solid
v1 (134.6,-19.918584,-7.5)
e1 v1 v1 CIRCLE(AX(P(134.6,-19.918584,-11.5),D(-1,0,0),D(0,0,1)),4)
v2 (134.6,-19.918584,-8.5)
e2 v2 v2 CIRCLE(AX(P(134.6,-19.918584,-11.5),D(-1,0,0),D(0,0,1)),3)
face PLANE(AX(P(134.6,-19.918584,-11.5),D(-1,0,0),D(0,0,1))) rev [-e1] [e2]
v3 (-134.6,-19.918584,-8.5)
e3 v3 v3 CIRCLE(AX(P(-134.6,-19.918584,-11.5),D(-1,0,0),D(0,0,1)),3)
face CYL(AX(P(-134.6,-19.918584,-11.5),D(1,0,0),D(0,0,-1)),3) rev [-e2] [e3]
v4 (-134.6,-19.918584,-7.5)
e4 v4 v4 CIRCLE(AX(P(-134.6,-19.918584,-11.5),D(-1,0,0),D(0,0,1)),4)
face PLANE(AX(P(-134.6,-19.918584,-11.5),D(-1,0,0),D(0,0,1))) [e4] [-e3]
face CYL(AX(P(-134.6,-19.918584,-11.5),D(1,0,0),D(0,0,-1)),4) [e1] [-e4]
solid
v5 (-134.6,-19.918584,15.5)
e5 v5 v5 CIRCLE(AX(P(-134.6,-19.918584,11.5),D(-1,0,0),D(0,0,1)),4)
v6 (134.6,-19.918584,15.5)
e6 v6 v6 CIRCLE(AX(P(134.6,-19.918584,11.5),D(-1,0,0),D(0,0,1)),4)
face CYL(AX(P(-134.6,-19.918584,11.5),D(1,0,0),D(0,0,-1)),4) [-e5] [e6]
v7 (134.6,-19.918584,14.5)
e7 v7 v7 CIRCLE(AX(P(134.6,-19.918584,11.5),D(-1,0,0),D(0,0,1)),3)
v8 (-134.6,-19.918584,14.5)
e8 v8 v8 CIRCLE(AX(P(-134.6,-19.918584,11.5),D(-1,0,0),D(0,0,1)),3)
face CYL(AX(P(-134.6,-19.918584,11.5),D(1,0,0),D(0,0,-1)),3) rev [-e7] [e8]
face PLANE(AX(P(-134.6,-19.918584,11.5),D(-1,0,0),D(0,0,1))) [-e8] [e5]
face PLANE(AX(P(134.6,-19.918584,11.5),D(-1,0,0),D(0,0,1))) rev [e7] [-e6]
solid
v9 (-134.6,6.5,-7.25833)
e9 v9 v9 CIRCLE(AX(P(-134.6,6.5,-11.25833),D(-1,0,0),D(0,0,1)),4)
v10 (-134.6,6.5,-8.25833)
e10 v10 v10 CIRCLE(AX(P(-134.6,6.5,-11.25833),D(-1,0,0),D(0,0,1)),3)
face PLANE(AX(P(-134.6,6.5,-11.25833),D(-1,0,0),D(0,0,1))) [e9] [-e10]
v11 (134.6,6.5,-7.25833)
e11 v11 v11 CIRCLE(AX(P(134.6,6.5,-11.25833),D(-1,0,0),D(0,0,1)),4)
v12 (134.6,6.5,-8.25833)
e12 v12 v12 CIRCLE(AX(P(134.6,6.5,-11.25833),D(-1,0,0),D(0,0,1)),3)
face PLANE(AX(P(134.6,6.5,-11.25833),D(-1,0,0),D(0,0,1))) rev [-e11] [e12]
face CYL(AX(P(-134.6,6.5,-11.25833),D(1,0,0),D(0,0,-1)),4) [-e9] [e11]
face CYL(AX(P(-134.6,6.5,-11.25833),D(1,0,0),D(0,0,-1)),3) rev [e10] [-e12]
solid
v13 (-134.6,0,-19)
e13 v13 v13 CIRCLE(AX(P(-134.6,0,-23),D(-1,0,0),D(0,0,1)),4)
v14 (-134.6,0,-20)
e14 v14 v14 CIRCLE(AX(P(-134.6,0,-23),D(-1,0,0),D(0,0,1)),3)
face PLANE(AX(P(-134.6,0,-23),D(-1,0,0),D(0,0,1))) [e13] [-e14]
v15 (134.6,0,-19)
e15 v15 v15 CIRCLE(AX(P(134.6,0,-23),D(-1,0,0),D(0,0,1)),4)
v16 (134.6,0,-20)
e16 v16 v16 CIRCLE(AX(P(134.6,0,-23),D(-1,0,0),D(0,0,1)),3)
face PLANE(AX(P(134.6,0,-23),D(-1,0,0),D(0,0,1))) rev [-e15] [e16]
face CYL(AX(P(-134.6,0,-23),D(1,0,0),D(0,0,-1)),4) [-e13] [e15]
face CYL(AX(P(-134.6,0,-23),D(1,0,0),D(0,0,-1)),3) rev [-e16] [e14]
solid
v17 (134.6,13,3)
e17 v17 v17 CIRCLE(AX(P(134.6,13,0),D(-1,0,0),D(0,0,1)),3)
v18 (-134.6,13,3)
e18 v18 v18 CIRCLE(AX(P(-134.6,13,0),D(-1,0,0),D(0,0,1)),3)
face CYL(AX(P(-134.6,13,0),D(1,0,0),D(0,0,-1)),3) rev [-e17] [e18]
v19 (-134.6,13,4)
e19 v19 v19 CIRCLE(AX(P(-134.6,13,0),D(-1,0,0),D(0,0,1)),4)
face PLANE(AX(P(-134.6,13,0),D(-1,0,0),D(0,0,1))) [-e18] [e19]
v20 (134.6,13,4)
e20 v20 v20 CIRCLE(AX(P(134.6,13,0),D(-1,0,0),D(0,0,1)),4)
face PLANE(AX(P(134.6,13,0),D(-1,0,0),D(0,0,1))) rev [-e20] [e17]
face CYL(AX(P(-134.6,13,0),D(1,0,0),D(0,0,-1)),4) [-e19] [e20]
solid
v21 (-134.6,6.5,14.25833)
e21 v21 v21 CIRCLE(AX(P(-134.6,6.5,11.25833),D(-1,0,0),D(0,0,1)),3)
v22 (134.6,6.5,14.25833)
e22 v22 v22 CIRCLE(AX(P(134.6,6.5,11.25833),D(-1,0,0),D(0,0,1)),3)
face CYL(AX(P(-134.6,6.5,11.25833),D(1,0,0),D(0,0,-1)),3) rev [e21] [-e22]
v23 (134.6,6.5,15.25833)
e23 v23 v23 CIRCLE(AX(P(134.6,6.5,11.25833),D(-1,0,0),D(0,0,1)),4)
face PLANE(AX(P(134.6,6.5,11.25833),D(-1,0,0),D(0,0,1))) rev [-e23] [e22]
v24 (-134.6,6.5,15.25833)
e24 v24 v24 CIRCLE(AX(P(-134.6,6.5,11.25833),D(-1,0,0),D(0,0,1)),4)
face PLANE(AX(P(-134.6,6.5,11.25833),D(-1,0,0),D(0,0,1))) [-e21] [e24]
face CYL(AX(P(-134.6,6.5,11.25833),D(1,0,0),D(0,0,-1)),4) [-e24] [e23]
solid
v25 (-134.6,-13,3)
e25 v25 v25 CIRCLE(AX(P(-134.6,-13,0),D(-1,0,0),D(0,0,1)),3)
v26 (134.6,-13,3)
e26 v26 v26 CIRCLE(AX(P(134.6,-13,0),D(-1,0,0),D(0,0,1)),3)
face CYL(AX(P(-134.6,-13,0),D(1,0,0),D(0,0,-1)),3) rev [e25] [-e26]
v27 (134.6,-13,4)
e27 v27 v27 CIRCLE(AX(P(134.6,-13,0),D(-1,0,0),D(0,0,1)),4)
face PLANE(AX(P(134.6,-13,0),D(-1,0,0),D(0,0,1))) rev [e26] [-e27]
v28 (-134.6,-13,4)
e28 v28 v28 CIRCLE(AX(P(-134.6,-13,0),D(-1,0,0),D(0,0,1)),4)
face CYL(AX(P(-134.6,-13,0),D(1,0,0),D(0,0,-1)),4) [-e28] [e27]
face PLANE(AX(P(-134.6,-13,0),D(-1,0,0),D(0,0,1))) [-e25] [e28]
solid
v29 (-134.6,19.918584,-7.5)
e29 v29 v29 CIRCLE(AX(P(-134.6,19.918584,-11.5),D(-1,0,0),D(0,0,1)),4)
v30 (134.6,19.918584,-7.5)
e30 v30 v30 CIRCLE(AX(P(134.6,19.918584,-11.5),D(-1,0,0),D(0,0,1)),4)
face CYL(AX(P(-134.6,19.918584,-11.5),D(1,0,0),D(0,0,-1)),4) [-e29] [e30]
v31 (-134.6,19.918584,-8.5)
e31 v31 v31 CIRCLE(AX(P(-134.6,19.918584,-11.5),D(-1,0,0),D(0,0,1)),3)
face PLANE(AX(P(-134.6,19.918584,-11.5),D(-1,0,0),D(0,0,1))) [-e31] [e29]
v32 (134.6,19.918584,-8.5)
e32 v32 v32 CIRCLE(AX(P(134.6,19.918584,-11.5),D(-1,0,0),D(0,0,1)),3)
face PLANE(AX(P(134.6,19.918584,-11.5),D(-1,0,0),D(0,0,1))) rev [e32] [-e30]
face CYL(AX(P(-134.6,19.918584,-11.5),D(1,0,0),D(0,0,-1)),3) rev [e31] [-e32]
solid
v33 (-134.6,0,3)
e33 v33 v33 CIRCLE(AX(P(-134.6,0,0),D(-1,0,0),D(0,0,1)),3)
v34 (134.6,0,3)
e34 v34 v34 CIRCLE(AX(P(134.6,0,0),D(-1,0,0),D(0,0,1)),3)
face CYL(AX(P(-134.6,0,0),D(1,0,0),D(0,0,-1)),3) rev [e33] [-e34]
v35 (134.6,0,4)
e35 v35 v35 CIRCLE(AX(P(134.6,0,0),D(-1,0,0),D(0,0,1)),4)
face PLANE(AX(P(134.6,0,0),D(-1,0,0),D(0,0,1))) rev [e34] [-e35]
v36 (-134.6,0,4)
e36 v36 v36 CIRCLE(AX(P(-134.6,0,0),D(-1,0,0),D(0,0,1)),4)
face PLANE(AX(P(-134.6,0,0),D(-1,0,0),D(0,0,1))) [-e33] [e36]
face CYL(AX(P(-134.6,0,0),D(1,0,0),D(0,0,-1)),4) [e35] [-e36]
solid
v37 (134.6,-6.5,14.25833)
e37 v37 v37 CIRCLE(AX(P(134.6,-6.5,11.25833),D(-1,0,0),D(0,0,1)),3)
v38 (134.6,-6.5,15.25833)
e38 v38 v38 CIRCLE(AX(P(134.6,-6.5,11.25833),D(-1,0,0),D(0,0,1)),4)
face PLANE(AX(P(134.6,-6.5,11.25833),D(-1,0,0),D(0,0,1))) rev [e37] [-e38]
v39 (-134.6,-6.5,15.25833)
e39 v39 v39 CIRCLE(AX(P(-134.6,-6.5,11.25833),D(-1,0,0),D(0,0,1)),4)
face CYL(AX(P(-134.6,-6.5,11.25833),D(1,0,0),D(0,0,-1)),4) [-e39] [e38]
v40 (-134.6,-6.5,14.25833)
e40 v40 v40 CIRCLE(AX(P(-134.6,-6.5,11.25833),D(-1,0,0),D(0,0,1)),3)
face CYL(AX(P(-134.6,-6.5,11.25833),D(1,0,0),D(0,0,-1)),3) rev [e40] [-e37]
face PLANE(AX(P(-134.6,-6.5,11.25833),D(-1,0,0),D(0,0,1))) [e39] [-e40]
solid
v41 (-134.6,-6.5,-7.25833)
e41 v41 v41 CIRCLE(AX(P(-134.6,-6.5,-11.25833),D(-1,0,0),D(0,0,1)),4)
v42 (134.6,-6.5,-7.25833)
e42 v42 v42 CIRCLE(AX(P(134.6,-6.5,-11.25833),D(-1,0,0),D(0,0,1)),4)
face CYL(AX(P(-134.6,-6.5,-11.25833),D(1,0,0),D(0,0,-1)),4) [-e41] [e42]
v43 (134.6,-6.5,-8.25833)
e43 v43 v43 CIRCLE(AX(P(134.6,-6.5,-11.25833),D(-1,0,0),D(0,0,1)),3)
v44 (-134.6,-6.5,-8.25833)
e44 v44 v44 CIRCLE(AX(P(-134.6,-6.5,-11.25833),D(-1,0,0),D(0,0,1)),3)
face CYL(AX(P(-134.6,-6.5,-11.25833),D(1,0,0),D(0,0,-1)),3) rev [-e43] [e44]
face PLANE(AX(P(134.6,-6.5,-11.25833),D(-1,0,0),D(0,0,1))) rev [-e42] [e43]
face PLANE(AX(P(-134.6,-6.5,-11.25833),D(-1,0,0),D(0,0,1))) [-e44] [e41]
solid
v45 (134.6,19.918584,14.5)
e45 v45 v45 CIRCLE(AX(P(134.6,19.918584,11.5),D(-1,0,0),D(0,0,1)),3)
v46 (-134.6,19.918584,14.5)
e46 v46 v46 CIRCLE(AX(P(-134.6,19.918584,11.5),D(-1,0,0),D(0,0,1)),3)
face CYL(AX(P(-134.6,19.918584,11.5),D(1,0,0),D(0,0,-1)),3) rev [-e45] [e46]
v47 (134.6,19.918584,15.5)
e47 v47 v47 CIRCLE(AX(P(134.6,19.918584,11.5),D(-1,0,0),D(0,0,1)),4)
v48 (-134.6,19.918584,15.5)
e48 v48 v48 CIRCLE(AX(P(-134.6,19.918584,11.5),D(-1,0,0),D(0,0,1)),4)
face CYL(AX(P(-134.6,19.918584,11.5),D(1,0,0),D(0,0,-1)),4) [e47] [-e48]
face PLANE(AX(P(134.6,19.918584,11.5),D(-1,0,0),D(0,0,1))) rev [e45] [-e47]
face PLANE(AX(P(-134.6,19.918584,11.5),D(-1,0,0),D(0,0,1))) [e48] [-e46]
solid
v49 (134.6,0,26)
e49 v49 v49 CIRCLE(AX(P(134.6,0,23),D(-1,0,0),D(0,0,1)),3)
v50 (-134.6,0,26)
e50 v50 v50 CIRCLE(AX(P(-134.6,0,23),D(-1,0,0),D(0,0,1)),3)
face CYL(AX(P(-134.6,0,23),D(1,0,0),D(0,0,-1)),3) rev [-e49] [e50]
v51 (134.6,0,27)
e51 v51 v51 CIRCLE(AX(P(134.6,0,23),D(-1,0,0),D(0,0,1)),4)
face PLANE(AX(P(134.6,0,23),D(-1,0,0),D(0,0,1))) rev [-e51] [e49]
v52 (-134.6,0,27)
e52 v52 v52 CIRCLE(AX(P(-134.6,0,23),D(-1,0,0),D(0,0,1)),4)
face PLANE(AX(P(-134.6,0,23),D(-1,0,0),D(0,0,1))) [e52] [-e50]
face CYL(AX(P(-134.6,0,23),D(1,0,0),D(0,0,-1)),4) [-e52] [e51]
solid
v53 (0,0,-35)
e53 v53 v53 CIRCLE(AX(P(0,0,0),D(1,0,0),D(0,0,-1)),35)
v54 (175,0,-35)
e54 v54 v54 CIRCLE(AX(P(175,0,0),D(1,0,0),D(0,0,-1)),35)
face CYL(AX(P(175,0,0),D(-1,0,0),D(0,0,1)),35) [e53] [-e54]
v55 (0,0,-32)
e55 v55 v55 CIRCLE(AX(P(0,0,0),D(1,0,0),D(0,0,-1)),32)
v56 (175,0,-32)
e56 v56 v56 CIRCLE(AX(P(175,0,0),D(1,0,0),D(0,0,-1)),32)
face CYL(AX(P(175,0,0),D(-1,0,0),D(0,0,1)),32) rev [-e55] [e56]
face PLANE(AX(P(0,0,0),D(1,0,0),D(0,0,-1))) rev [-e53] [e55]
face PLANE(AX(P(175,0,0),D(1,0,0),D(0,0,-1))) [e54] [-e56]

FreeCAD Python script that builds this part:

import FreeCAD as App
import Part
import Sketcher

V = App.Vector
Q = App.Units.Quantity

doc = App.newDocument("Part")
body = doc.addObject("PartDesign::Body", "Body")

# Sketch on YZ plane
sketch1 = body.newObject("Sketcher::SketchObject", "Sketch")
sketch1.AttachmentSupport = (doc.getObject("YZ_Plane"), [""])
sketch1.MapMode = "FlatFace"
sketch1.addGeometry([
    Part.Circle(V(0, 0, 0), V(0, 0, 1), 35),
    Part.Circle(V(0, 0, 0), V(0, 0, 1), 32),
], False)
sketch1.addConstraint([
    Sketcher.Constraint("Coincident", 0, 3, -1, 1),
    Sketcher.Constraint("Coincident", 1, 3, -1, 1),
    Sketcher.Constraint("Diameter", 0, Q("70 mm")),
    Sketcher.Constraint("Diameter", 1, Q("64 mm")),
])
pad1 = body.newObject("PartDesign::Pad", "Pad")
pad1.Profile = sketch1
pad1.Length = 175
body2 = doc.addObject("PartDesign::Body", "Body001")

# Sketch on YZ plane
sketch2 = body2.newObject("Sketcher::SketchObject", "Sketch001")
sketch2.AttachmentSupport = (doc.getObject("YZ_Plane001"), [""])
sketch2.MapMode = "FlatFace"
sketch2.addGeometry([
    Part.Circle(V(0, 0, 0), V(0, 0, 1), 4),
    Part.Circle(V(0, 0, 0), V(0, 0, 1), 3),
], False)
sketch2.addConstraint([
    Sketcher.Constraint("Coincident", 0, 3, -1, 1),
    Sketcher.Constraint("Coincident", 1, 3, -1, 1),
    Sketcher.Constraint("Diameter", 0, Q("8 mm")),
    Sketcher.Constraint("Diameter", 1, Q("6 mm")),
])
pad2 = body2.newObject("PartDesign::Pad", "Pad001")
pad2.Profile = sketch2
pad2.Type = "TwoLengths"
pad2.Length = 134.6
pad2.Length2 = 134.6
pad2.Reversed = True
body3 = doc.addObject("PartDesign::Body", "Body002")

# Sketch on YZ plane
sketch3 = body3.newObject("Sketcher::SketchObject", "Sketch002")
sketch3.AttachmentSupport = (doc.getObject("YZ_Plane002"), [""])
sketch3.MapMode = "FlatFace"
sketch3.addGeometry([
    Part.Circle(V(13, 0, 0), V(0, 0, 1), 4),
    Part.Circle(V(13, 0, 0), V(0, 0, 1), 3),
], False)
sketch3.addConstraint([
    Sketcher.Constraint("Coincident", 1, 3, 0, 3),
    Sketcher.Constraint("PointOnObject", 0, 3, -1),
    Sketcher.Constraint("Diameter", 0, Q("8 mm")),
    Sketcher.Constraint("Diameter", 1, Q("6 mm")),
    Sketcher.Constraint("DistanceX", -1, 1, 0, 3, Q("13 mm")),
])
pad3 = body3.newObject("PartDesign::Pad", "Pad002")
pad3.Profile = sketch3
pad3.Type = "TwoLengths"
pad3.Length = 134.6
pad3.Length2 = 134.6
pad3.Reversed = True
body4 = doc.addObject("PartDesign::Body", "Body003")

# Sketch on YZ plane
sketch4 = body4.newObject("Sketcher::SketchObject", "Sketch003")
sketch4.AttachmentSupport = (doc.getObject("YZ_Plane003"), [""])
sketch4.MapMode = "FlatFace"
sketch4.addGeometry([
    Part.Circle(V(6.5, 11.3, 0), V(0, 0, 1), 4),
    Part.Circle(V(6.5, 11.3, 0), V(0, 0, 1), 3),
], False)
sketch4.addConstraint([
    Sketcher.Constraint("Coincident", 1, 3, 0, 3),
    Sketcher.Constraint("Diameter", 0, Q("8 mm")),
    Sketcher.Constraint("Diameter", 1, Q("6 mm")),
    Sketcher.Constraint("DistanceX", -1, 1, 0, 3, Q("6.5 mm")),
    Sketcher.Constraint("DistanceY", -1, 1, 0, 3, Q("11.25833 mm")),
])
pad4 = body4.newObject("PartDesign::Pad", "Pad003")
pad4.Profile = sketch4
pad4.Type = "TwoLengths"
pad4.Length = 134.6
pad4.Length2 = 134.6
pad4.Reversed = True
body5 = doc.addObject("PartDesign::Body", "Body004")

# Sketch on YZ plane
sketch5 = body5.newObject("Sketcher::SketchObject", "Sketch004")
sketch5.AttachmentSupport = (doc.getObject("YZ_Plane004"), [""])
sketch5.MapMode = "FlatFace"
sketch5.addGeometry([
    Part.Circle(V(-6.5, 11.3, 0), V(0, 0, 1), 4),
    Part.Circle(V(-6.5, 11.3, 0), V(0, 0, 1), 3),
], False)
sketch5.addConstraint([
    Sketcher.Constraint("Coincident", 1, 3, 0, 3),
    Sketcher.Constraint("Diameter", 0, Q("8 mm")),
    Sketcher.Constraint("Diameter", 1, Q("6 mm")),
    Sketcher.Constraint("DistanceX", 0, 3, -1, 1, Q("6.5 mm")),
    Sketcher.Constraint("DistanceY", -1, 1, 0, 3, Q("11.25833 mm")),
])
pad5 = body5.newObject("PartDesign::Pad", "Pad004")
pad5.Profile = sketch5
pad5.Type = "TwoLengths"
pad5.Length = 134.6
pad5.Length2 = 134.6
pad5.Reversed = True
body6 = doc.addObject("PartDesign::Body", "Body005")

# Sketch on YZ plane
sketch6 = body6.newObject("Sketcher::SketchObject", "Sketch005")
sketch6.AttachmentSupport = (doc.getObject("YZ_Plane005"), [""])
sketch6.MapMode = "FlatFace"
sketch6.addGeometry([
    Part.Circle(V(-13, 0, 0), V(0, 0, 1), 4),
    Part.Circle(V(-13, 0, 0), V(0, 0, 1), 3),
], False)
sketch6.addConstraint([
    Sketcher.Constraint("Coincident", 1, 3, 0, 3),
    Sketcher.Constraint("PointOnObject", 0, 3, -1),
    Sketcher.Constraint("Diameter", 0, Q("8 mm")),
    Sketcher.Constraint("Diameter", 1, Q("6 mm")),
    Sketcher.Constraint("DistanceX", 0, 3, -1, 1, Q("13 mm")),
])
pad6 = body6.newObject("PartDesign::Pad", "Pad005")
pad6.Profile = sketch6
pad6.Type = "TwoLengths"
pad6.Length = 134.6
pad6.Length2 = 134.6
pad6.Reversed = True
body7 = doc.addObject("PartDesign::Body", "Body006")

# Sketch on YZ plane
sketch7 = body7.newObject("Sketcher::SketchObject", "Sketch006")
sketch7.AttachmentSupport = (doc.getObject("YZ_Plane006"), [""])
sketch7.MapMode = "FlatFace"
sketch7.addGeometry([
    Part.Circle(V(-6.5, -11.3, 0), V(0, 0, 1), 4),
    Part.Circle(V(-6.5, -11.3, 0), V(0, 0, 1), 3),
], False)
sketch7.addConstraint([
    Sketcher.Constraint("Coincident", 1, 3, 0, 3),
    Sketcher.Constraint("Diameter", 0, Q("8 mm")),
    Sketcher.Constraint("Diameter", 1, Q("6 mm")),
    Sketcher.Constraint("DistanceX", 0, 3, -1, 1, Q("6.5 mm")),
    Sketcher.Constraint("DistanceY", 0, 3, -1, 1, Q("11.25833 mm")),
])
pad7 = body7.newObject("PartDesign::Pad", "Pad006")
pad7.Profile = sketch7
pad7.Type = "TwoLengths"
pad7.Length = 134.6
pad7.Length2 = 134.6
pad7.Reversed = True
body8 = doc.addObject("PartDesign::Body", "Body007")

# Sketch on YZ plane
sketch8 = body8.newObject("Sketcher::SketchObject", "Sketch007")
sketch8.AttachmentSupport = (doc.getObject("YZ_Plane007"), [""])
sketch8.MapMode = "FlatFace"
sketch8.addGeometry([
    Part.Circle(V(6.5, -11.3, 0), V(0, 0, 1), 4),
    Part.Circle(V(6.5, -11.3, 0), V(0, 0, 1), 3),
], False)
sketch8.addConstraint([
    Sketcher.Constraint("Coincident", 1, 3, 0, 3),
    Sketcher.Constraint("Diameter", 0, Q("8 mm")),
    Sketcher.Constraint("Diameter", 1, Q("6 mm")),
    Sketcher.Constraint("DistanceX", -1, 1, 0, 3, Q("6.5 mm")),
    Sketcher.Constraint("DistanceY", 0, 3, -1, 1, Q("11.25833 mm")),
])
pad8 = body8.newObject("PartDesign::Pad", "Pad007")
pad8.Profile = sketch8
pad8.Type = "TwoLengths"
pad8.Length = 134.6
pad8.Length2 = 134.6
pad8.Reversed = True
body9 = doc.addObject("PartDesign::Body", "Body008")

# Sketch on YZ plane
sketch9 = body9.newObject("Sketcher::SketchObject", "Sketch008")
sketch9.AttachmentSupport = (doc.getObject("YZ_Plane008"), [""])
sketch9.MapMode = "FlatFace"
sketch9.addGeometry([
    Part.Circle(V(19.9, 11.5, 0), V(0, 0, 1), 4),
    Part.Circle(V(19.9, 11.5, 0), V(0, 0, 1), 3),
], False)
sketch9.addConstraint([
    Sketcher.Constraint("Coincident", 1, 3, 0, 3),
    Sketcher.Constraint("Diameter", 0, Q("8 mm")),
    Sketcher.Constraint("Diameter", 1, Q("6 mm")),
    Sketcher.Constraint("DistanceY", -1, 1, 0, 3, Q("11.5 mm")),
    Sketcher.Constraint("DistanceX", -1, 1, 0, 3, Q("19.918584 mm")),
])
pad9 = body9.newObject("PartDesign::Pad", "Pad008")
pad9.Profile = sketch9
pad9.Type = "TwoLengths"
pad9.Length = 134.6
pad9.Length2 = 134.6
pad9.Reversed = True
body10 = doc.addObject("PartDesign::Body", "Body009")

# Sketch on YZ plane
sketch10 = body10.newObject("Sketcher::SketchObject", "Sketch009")
sketch10.AttachmentSupport = (doc.getObject("YZ_Plane009"), [""])
sketch10.MapMode = "FlatFace"
sketch10.addGeometry([
    Part.Circle(V(0, 23, 0), V(0, 0, 1), 4),
    Part.Circle(V(0, 23, 0), V(0, 0, 1), 3),
], False)
sketch10.addConstraint([
    Sketcher.Constraint("Coincident", 1, 3, 0, 3),
    Sketcher.Constraint("PointOnObject", 0, 3, -2),
    Sketcher.Constraint("Diameter", 0, Q("8 mm")),
    Sketcher.Constraint("Diameter", 1, Q("6 mm")),
    Sketcher.Constraint("DistanceY", -1, 1, 0, 3, Q("23 mm")),
])
pad10 = body10.newObject("PartDesign::Pad", "Pad009")
pad10.Profile = sketch10
pad10.Type = "TwoLengths"
pad10.Length = 134.6
pad10.Length2 = 134.6
pad10.Reversed = True
body11 = doc.addObject("PartDesign::Body", "Body010")

# Sketch on YZ plane
sketch11 = body11.newObject("Sketcher::SketchObject", "Sketch010")
sketch11.AttachmentSupport = (doc.getObject("YZ_Plane010"), [""])
sketch11.MapMode = "FlatFace"
sketch11.addGeometry([
    Part.Circle(V(-19.9, 11.5, 0), V(0, 0, 1), 4),
    Part.Circle(V(-19.9, 11.5, 0), V(0, 0, 1), 3),
], False)
sketch11.addConstraint([
    Sketcher.Constraint("Coincident", 1, 3, 0, 3),
    Sketcher.Constraint("Diameter", 0, Q("8 mm")),
    Sketcher.Constraint("Diameter", 1, Q("6 mm")),
    Sketcher.Constraint("DistanceY", -1, 1, 0, 3, Q("11.5 mm")),
    Sketcher.Constraint("DistanceX", 0, 3, -1, 1, Q("19.918584 mm")),
])
pad11 = body11.newObject("PartDesign::Pad", "Pad010")
pad11.Profile = sketch11
pad11.Type = "TwoLengths"
pad11.Length = 134.6
pad11.Length2 = 134.6
pad11.Reversed = True
body12 = doc.addObject("PartDesign::Body", "Body011")

# Sketch on YZ plane
sketch12 = body12.newObject("Sketcher::SketchObject", "Sketch011")
sketch12.AttachmentSupport = (doc.getObject("YZ_Plane011"), [""])
sketch12.MapMode = "FlatFace"
sketch12.addGeometry([
    Part.Circle(V(-19.9, -11.5, 0), V(0, 0, 1), 4),
    Part.Circle(V(-19.9, -11.5, 0), V(0, 0, 1), 3),
], False)
sketch12.addConstraint([
    Sketcher.Constraint("Coincident", 1, 3, 0, 3),
    Sketcher.Constraint("Diameter", 0, Q("8 mm")),
    Sketcher.Constraint("Diameter", 1, Q("6 mm")),
    Sketcher.Constraint("DistanceY", 0, 3, -1, 1, Q("11.5 mm")),
    Sketcher.Constraint("DistanceX", 0, 3, -1, 1, Q("19.918584 mm")),
])
pad12 = body12.newObject("PartDesign::Pad", "Pad011")
pad12.Profile = sketch12
pad12.Type = "TwoLengths"
pad12.Length = 134.6
pad12.Length2 = 134.6
pad12.Reversed = True
body13 = doc.addObject("PartDesign::Body", "Body012")

# Sketch on YZ plane
sketch13 = body13.newObject("Sketcher::SketchObject", "Sketch012")
sketch13.AttachmentSupport = (doc.getObject("YZ_Plane012"), [""])
sketch13.MapMode = "FlatFace"
sketch13.addGeometry([
    Part.Circle(V(0, -23, 0), V(0, 0, 1), 4),
    Part.Circle(V(0, -23, 0), V(0, 0, 1), 3),
], False)
sketch13.addConstraint([
    Sketcher.Constraint("Coincident", 1, 3, 0, 3),
    Sketcher.Constraint("PointOnObject", 0, 3, -2),
    Sketcher.Constraint("Diameter", 0, Q("8 mm")),
    Sketcher.Constraint("Diameter", 1, Q("6 mm")),
    Sketcher.Constraint("DistanceY", 0, 3, -1, 1, Q("23 mm")),
])
pad13 = body13.newObject("PartDesign::Pad", "Pad012")
pad13.Profile = sketch13
pad13.Type = "TwoLengths"
pad13.Length = 134.6
pad13.Length2 = 134.6
pad13.Reversed = True
body14 = doc.addObject("PartDesign::Body", "Body013")

# Sketch on YZ plane
sketch14 = body14.newObject("Sketcher::SketchObject", "Sketch013")
sketch14.AttachmentSupport = (doc.getObject("YZ_Plane013"), [""])
sketch14.MapMode = "FlatFace"
sketch14.addGeometry([
    Part.Circle(V(19.9, -11.5, 0), V(0, 0, 1), 4),
    Part.Circle(V(19.9, -11.5, 0), V(0, 0, 1), 3),
], False)
sketch14.addConstraint([
    Sketcher.Constraint("Coincident", 1, 3, 0, 3),
    Sketcher.Constraint("Diameter", 0, Q("8 mm")),
    Sketcher.Constraint("Diameter", 1, Q("6 mm")),
    Sketcher.Constraint("DistanceY", 0, 3, -1, 1, Q("11.5 mm")),
    Sketcher.Constraint("DistanceX", -1, 1, 0, 3, Q("19.918584 mm")),
])
pad14 = body14.newObject("PartDesign::Pad", "Pad013")
pad14.Profile = sketch14
pad14.Type = "TwoLengths"
pad14.Length = 134.6
pad14.Length2 = 134.6
pad14.Reversed = True

doc.recompute()
